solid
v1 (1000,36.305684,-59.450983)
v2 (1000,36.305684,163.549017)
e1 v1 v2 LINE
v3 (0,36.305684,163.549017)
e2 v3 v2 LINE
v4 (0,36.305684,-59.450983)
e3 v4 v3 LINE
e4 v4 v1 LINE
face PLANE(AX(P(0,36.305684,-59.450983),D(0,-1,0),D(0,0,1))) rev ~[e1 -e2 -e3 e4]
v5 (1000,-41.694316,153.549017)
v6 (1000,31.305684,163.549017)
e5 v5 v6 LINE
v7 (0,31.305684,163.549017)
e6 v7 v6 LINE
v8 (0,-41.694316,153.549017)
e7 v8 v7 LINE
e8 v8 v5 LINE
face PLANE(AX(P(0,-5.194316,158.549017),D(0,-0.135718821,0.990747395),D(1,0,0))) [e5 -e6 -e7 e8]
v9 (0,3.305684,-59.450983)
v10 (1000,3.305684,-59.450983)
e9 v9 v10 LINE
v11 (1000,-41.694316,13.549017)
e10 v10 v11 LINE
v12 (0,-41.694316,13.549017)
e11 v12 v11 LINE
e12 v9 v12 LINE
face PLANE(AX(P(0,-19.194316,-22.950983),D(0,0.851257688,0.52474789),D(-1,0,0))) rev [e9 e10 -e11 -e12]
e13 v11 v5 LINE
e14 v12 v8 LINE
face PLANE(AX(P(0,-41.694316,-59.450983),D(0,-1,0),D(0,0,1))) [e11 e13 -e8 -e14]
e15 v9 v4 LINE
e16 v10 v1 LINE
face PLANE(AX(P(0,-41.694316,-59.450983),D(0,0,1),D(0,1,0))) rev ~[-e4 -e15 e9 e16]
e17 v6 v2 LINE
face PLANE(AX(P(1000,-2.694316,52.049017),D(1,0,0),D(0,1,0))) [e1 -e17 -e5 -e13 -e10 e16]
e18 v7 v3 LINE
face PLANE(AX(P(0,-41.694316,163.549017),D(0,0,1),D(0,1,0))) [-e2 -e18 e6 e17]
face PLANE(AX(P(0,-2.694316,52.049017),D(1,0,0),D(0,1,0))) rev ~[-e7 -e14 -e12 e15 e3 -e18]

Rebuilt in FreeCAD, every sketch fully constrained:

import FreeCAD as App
import Part
import Sketcher

V = App.Vector
Q = App.Units.Quantity


def edges_at(feature, points):
    """Names of the edges that pass closest to the given points."""
    edges = feature.Shape.Edges
    near = lambda p: min(range(len(edges)), key=lambda i: edges[i].distToShape(Part.Vertex(*p))[0])
    return sorted({f"Edge{near(p) + 1}" for p in points})


def add_polygon(sketch, points):
    """Adds a closed chain of lines whose ends are joined by coincident constraints."""
    first, n = sketch.GeometryCount, len(points)
    for a, b in zip(points, points[1:] + points[:1]):
        sketch.addGeometry(Part.LineSegment(App.Vector(*a, 0), App.Vector(*b, 0)), False)
    for i in range(n):
        sketch.addConstraint(Sketcher.Constraint("Coincident", first + i, 2, first + (i + 1) % n, 1))

doc = App.newDocument("Part")
body = doc.addObject("PartDesign::Body", "Body")

sketch1 = body.newObject("Sketcher::SketchObject", "Sketch")
sketch1.AttachmentSupport = (doc.getObject("YZ_Plane"), [""])
sketch1.MapMode = "FlatFace"
add_polygon(sketch1, [(-42, 164), (-42, -59), (36, -59), (36, 164)])
sketch1.addConstraint([
    Sketcher.Constraint("Vertical", 0),
    Sketcher.Constraint("Horizontal", 1),
    Sketcher.Constraint("Vertical", 2),
    Sketcher.Constraint("Horizontal", 3),
    Sketcher.Constraint("DistanceX", 1, 1, 1, 2, Q("78 mm")),
    Sketcher.Constraint("DistanceY", 0, 2, 0, 1, Q("223 mm")),
    Sketcher.Constraint("DistanceX", 0, 2, -1, 1, Q("41.694316 mm")),
    Sketcher.Constraint("DistanceY", 0, 2, -1, 1, Q("59.450983 mm")),
])
pad1 = body.newObject("PartDesign::Pad", "Pad")
pad1.Profile = sketch1
pad1.Length = 1000
doc.recompute()

chamfer = body.newObject("PartDesign::Chamfer", "Chamfer")
chamfer.Base = (pad1, edges_at(pad1, [(500, -41.694, 163.549)]))
chamfer.ChamferType = "Two distances"
chamfer.Size = 10
chamfer.Size2 = 73
doc.recompute()

chamfer2 = body.newObject("PartDesign::Chamfer", "Chamfer001")
chamfer2.Base = (chamfer, edges_at(chamfer, [(500, -41.694, -59.451)]))
chamfer2.ChamferType = "Two distances"
chamfer2.Size = 45
chamfer2.Size2 = 73
chamfer2.FlipDirection = True

doc.recompute()
